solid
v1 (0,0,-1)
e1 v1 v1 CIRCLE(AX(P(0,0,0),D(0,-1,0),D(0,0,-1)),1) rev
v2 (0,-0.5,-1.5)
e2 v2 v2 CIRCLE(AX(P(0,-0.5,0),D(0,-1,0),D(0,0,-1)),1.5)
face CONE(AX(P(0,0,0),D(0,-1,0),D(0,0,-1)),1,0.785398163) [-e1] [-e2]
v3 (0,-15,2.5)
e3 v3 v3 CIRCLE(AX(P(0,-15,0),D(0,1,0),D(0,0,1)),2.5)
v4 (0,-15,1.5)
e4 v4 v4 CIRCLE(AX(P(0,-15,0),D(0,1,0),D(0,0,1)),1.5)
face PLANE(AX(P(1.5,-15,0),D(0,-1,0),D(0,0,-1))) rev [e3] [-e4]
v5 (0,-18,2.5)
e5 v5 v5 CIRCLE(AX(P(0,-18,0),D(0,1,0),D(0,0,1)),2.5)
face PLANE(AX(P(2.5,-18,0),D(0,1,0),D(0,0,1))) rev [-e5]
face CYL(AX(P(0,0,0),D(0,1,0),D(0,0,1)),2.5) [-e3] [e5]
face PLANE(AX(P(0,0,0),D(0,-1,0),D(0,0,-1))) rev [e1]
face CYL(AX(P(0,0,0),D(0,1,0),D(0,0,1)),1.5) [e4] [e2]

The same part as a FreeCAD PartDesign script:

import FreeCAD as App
import Part
import Sketcher

V = App.Vector


def edges_at(feature, points):
    """Names of the edges that pass closest to the given points."""
    edges = feature.Shape.Edges
    near = lambda p: min(range(len(edges)), key=lambda i: edges[i].distToShape(Part.Vertex(*p))[0])
    return sorted({f"Edge{near(p) + 1}" for p in points})

doc = App.newDocument("Part")
params = doc.addObject("Spreadsheet::Sheet", "Params")
for row, (alias, value) in enumerate([
    ("sketch1_width", "1 mm"),
    ("sketch1_height", "18 mm"),
    ("sketch1_height2", "3 mm"),
    ("sketch1_width2", "1.5 mm"),
    ("revolution_angle", "360 deg"),
    ("chamfer_size", "0.5 mm"),
], start=1):
    params.set(f"A{row}", alias)
    params.set(f"B{row}", "=" + value)
    params.setAlias(f"B{row}", alias)

body = doc.addObject("PartDesign::Body", "Body")

# Sketch on XY plane
sketch1 = body.newObject("Sketcher::SketchObject", "Sketch")
sketch1.AttachmentSupport = (doc.getObject("XY_Plane"), [""])
sketch1.MapMode = "FlatFace"
sketch1.addGeometry([
    Part.LineSegment(V(1.5, 0, 0), V(0, 0, 0)),  # 0
    Part.LineSegment(V(0, 0, 0), V(0, -18, 0)),  # 1
    Part.LineSegment(V(0, -18, 0), V(2.5, -18, 0)),  # 2
    Part.LineSegment(V(2.5, -18, 0), V(2.5, -15, 0)),  # 3
    Part.LineSegment(V(2.5, -15, 0), V(1.5, -15, 0)),  # 4
    Part.LineSegment(V(1.5, -15, 0), V(1.5, 0, 0)),  # 5
], False)
sketch1.addConstraint([
    Sketcher.Constraint("Coincident", 0, 2, 1, 1),
    Sketcher.Constraint("Coincident", 1, 2, 2, 1),
    Sketcher.Constraint("Coincident", 2, 2, 3, 1),
    Sketcher.Constraint("Coincident", 3, 2, 4, 1),
    Sketcher.Constraint("Coincident", 4, 2, 5, 1),
    Sketcher.Constraint("Coincident", 5, 2, 0, 1),
    Sketcher.Constraint("Horizontal", 0),
    Sketcher.Constraint("Vertical", 1),
    Sketcher.Constraint("Horizontal", 2),
    Sketcher.Constraint("Vertical", 3),
    Sketcher.Constraint("Horizontal", 4),
    Sketcher.Constraint("Vertical", 5),
    Sketcher.Constraint("Coincident", 0, 2, -1, 1),
    Sketcher.Constraint("DistanceX", 4, 2, 4, 1, 1.0),
    Sketcher.Constraint("DistanceY", 1, 2, 1, 1, 18.0),
    Sketcher.Constraint("DistanceY", 3, 1, 3, 2, 3.0),
    Sketcher.Constraint("DistanceX", 0, 2, 0, 1, 1.5),
])
sketch1.setExpression("Constraints[13]", "Params.sketch1_width")
sketch1.setExpression("Constraints[14]", "Params.sketch1_height")
sketch1.setExpression("Constraints[15]", "Params.sketch1_height2")
sketch1.setExpression("Constraints[16]", "Params.sketch1_width2")
revolution = body.newObject("PartDesign::Revolution", "Revolution")
revolution.Profile = sketch1
revolution.ReferenceAxis = (sketch1, ["V_Axis"])
revolution.setExpression("Angle", "Params.revolution_angle")
doc.recompute()

chamfer = body.newObject("PartDesign::Chamfer", "Chamfer")
chamfer.Base = (revolution, edges_at(revolution, [(-1.5, 0, 0)]))
chamfer.setExpression("Size", "Params.chamfer_size")

doc.recompute()
